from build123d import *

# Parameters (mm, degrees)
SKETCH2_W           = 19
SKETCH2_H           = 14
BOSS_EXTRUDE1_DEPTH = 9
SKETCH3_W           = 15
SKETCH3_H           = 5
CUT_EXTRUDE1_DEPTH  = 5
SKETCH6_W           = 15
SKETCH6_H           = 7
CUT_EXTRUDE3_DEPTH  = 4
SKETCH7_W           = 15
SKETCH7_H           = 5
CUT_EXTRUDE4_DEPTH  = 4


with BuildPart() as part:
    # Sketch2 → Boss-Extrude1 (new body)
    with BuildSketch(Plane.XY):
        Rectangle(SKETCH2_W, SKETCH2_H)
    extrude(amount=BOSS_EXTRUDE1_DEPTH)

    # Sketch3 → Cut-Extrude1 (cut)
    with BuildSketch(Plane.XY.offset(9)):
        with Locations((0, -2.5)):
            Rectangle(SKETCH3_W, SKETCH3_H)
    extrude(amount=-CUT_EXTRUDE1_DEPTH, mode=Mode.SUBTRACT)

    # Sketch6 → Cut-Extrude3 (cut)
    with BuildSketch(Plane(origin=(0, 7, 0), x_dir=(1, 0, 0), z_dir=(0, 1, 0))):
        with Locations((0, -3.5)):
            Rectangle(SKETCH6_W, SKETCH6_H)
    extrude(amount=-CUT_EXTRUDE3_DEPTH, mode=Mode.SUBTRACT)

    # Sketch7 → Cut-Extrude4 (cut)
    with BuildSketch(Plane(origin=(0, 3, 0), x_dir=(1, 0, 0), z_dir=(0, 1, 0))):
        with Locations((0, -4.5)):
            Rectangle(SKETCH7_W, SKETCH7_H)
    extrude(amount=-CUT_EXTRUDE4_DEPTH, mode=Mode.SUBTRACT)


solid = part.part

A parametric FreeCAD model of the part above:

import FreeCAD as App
import Part
import Sketcher
from FreeCAD import Vector

doc = App.newDocument("Part")
params = doc.addObject("Spreadsheet::Sheet", "Params")
for row, (alias, value) in enumerate([
    ("sketch1_width", "19 mm"),
    ("sketch1_height", "14 mm"),
    ("pad1_length", "9 mm"),
    ("sketch2_width", "15 mm"),
    ("sketch2_height", "5 mm"),
    ("pocket1_length", "5 mm"),
    ("sketch3_width", "15 mm"),
    ("sketch3_height", "7 mm"),
    ("pocket2_length", "4 mm"),
    ("sketch4_width", "15 mm"),
    ("sketch4_height", "5 mm"),
    ("pocket3_length", "4 mm"),
], start=1):
    params.set(f"A{row}", alias)
    params.set(f"B{row}", "=" + value)
    params.setAlias(f"B{row}", alias)

body = doc.addObject("PartDesign::Body", "Body")

sketch1 = body.newObject("Sketcher::SketchObject", "Sketch")
sketch1.AttachmentSupport = (doc.getObject("XY_Plane"), [""])
sketch1.MapMode = "FlatFace"
sketch1.addGeometry([
    Part.LineSegment(Vector(-10, 7, 0), Vector(-10, -7, 0)),
    Part.LineSegment(Vector(-10, -7, 0), Vector(10, -7, 0)),
    Part.LineSegment(Vector(10, -7, 0), Vector(10, 7, 0)),
    Part.LineSegment(Vector(10, 7, 0), Vector(-10, 7, 0)),
], False)
sketch1.addConstraint([
    Sketcher.Constraint("Coincident", 0, 2, 1, 1),
    Sketcher.Constraint("Coincident", 1, 2, 2, 1),
    Sketcher.Constraint("Coincident", 2, 2, 3, 1),
    Sketcher.Constraint("Coincident", 3, 2, 0, 1),
    Sketcher.Constraint("Vertical", 0),
    Sketcher.Constraint("Horizontal", 1),
    Sketcher.Constraint("Vertical", 2),
    Sketcher.Constraint("Horizontal", 3),
    Sketcher.Constraint("Symmetric", 0, 2, 2, 2, -1, 1),
    Sketcher.Constraint("DistanceX", 1, 1, 1, 2, 19.0),
    Sketcher.Constraint("DistanceY", 0, 2, 0, 1, 14.0),
])
sketch1.setExpression("Constraints[9]", "Params.sketch1_width")
sketch1.setExpression("Constraints[10]", "Params.sketch1_height")
pad1 = body.newObject("PartDesign::Pad", "Pad")
pad1.Profile = sketch1
pad1.setExpression("Length", "Params.pad1_length")

sketch2 = body.newObject("Sketcher::SketchObject", "Sketch001")
sketch2.AttachmentSupport = (doc.getObject("XY_Plane"), [""])
sketch2.MapMode = "FlatFace"
sketch2.AttachmentOffset = App.Placement(Vector(0, 0, 9), App.Rotation())
sketch2.addGeometry([
    Part.LineSegment(Vector(-8, 0, 0), Vector(-8, -5, 0)),
    Part.LineSegment(Vector(-8, -5, 0), Vector(8, -5, 0)),
    Part.LineSegment(Vector(8, -5, 0), Vector(8, 0, 0)),
    Part.LineSegment(Vector(8, 0, 0), Vector(-8, 0, 0)),
], False)
sketch2.addConstraint([
    Sketcher.Constraint("Coincident", 0, 2, 1, 1),
    Sketcher.Constraint("Coincident", 1, 2, 2, 1),
    Sketcher.Constraint("Coincident", 2, 2, 3, 1),
    Sketcher.Constraint("Coincident", 3, 2, 0, 1),
    Sketcher.Constraint("Vertical", 0),
    Sketcher.Constraint("Horizontal", 1),
    Sketcher.Constraint("Vertical", 2),
    Sketcher.Constraint("Horizontal", 3),
    Sketcher.Constraint("Symmetric", 2, 2, 3, 2, -1, 1),
    Sketcher.Constraint("DistanceX", 1, 1, 1, 2, 15.0),
    Sketcher.Constraint("DistanceY", 0, 2, 0, 1, 5.0),
])
sketch2.setExpression("Constraints[9]", "Params.sketch2_width")
sketch2.setExpression("Constraints[10]", "Params.sketch2_height")
pocket1 = body.newObject("PartDesign::Pocket", "Pocket")
pocket1.Profile = sketch2
pocket1.setExpression("Length", "Params.pocket1_length")

sketch3 = body.newObject("Sketcher::SketchObject", "Sketch002")
sketch3.AttachmentSupport = (doc.getObject("XZ_Plane"), [""])
sketch3.MapMode = "FlatFace"
sketch3.AttachmentOffset = App.Placement(Vector(0, 0, -7), App.Rotation())
sketch3.addGeometry([
    Part.LineSegment(Vector(-8, 0, 0), Vector(-8, 7, 0)),
    Part.LineSegment(Vector(-8, 7, 0), Vector(8, 7, 0)),
    Part.LineSegment(Vector(8, 7, 0), Vector(8, 0, 0)),
    Part.LineSegment(Vector(8, 0, 0), Vector(-8, 0, 0)),
], False)
sketch3.addConstraint([
    Sketcher.Constraint("Coincident", 0, 2, 1, 1),
    Sketcher.Constraint("Coincident", 1, 2, 2, 1),
    Sketcher.Constraint("Coincident", 2, 2, 3, 1),
    Sketcher.Constraint("Coincident", 3, 2, 0, 1),
    Sketcher.Constraint("Vertical", 0),
    Sketcher.Constraint("Horizontal", 1),
    Sketcher.Constraint("Vertical", 2),
    Sketcher.Constraint("Horizontal", 3),
    Sketcher.Constraint("Symmetric", 2, 2, 3, 2, -1, 1),
    Sketcher.Constraint("DistanceX", 1, 1, 1, 2, 15.0),
    Sketcher.Constraint("DistanceY", 0, 1, 0, 2, 7.0),
])
sketch3.setExpression("Constraints[9]", "Params.sketch3_width")
sketch3.setExpression("Constraints[10]", "Params.sketch3_height")
pocket2 = body.newObject("PartDesign::Pocket", "Pocket001")
pocket2.Profile = sketch3
pocket2.setExpression("Length", "Params.pocket2_length")
pocket2.Reversed = True

sketch4 = body.newObject("Sketcher::SketchObject", "Sketch003")
sketch4.AttachmentSupport = (doc.getObject("XZ_Plane"), [""])
sketch4.MapMode = "FlatFace"
sketch4.AttachmentOffset = App.Placement(Vector(0, 0, -3), App.Rotation())
sketch4.addGeometry([
    Part.LineSegment(Vector(-8, 2, 0), Vector(-8, 7, 0)),
    Part.LineSegment(Vector(-8, 7, 0), Vector(8, 7, 0)),
    Part.LineSegment(Vector(8, 7, 0), Vector(8, 2, 0)),
    Part.LineSegment(Vector(8, 2, 0), Vector(-8, 2, 0)),
], False)
sketch4.addConstraint([
    Sketcher.Constraint("Coincident", 0, 2, 1, 1),
    Sketcher.Constraint("Coincident", 1, 2, 2, 1),
    Sketcher.Constraint("Coincident", 2, 2, 3, 1),
    Sketcher.Constraint("Coincident", 3, 2, 0, 1),
    Sketcher.Constraint("Vertical", 0),
    Sketcher.Constraint("Horizontal", 1),
    Sketcher.Constraint("Vertical", 2),
    Sketcher.Constraint("Horizontal", 3),
    Sketcher.Constraint("DistanceX", 1, 1, 1, 2, 15.0),
    Sketcher.Constraint("DistanceY", 0, 1, 0, 2, 5.0),
    Sketcher.Constraint("DistanceY", -1, 1, 0, 2, 7.0),
    Sketcher.Constraint("DistanceX", 0, 2, -1, 1, 7.5),
])
sketch4.setExpression("Constraints[8]", "Params.sketch4_width")
sketch4.setExpression("Constraints[9]", "Params.sketch4_height")
pocket3 = body.newObject("PartDesign::Pocket", "Pocket002")
pocket3.Profile = sketch4
pocket3.setExpression("Length", "Params.pocket3_length")
pocket3.Reversed = True

doc.recompute()
